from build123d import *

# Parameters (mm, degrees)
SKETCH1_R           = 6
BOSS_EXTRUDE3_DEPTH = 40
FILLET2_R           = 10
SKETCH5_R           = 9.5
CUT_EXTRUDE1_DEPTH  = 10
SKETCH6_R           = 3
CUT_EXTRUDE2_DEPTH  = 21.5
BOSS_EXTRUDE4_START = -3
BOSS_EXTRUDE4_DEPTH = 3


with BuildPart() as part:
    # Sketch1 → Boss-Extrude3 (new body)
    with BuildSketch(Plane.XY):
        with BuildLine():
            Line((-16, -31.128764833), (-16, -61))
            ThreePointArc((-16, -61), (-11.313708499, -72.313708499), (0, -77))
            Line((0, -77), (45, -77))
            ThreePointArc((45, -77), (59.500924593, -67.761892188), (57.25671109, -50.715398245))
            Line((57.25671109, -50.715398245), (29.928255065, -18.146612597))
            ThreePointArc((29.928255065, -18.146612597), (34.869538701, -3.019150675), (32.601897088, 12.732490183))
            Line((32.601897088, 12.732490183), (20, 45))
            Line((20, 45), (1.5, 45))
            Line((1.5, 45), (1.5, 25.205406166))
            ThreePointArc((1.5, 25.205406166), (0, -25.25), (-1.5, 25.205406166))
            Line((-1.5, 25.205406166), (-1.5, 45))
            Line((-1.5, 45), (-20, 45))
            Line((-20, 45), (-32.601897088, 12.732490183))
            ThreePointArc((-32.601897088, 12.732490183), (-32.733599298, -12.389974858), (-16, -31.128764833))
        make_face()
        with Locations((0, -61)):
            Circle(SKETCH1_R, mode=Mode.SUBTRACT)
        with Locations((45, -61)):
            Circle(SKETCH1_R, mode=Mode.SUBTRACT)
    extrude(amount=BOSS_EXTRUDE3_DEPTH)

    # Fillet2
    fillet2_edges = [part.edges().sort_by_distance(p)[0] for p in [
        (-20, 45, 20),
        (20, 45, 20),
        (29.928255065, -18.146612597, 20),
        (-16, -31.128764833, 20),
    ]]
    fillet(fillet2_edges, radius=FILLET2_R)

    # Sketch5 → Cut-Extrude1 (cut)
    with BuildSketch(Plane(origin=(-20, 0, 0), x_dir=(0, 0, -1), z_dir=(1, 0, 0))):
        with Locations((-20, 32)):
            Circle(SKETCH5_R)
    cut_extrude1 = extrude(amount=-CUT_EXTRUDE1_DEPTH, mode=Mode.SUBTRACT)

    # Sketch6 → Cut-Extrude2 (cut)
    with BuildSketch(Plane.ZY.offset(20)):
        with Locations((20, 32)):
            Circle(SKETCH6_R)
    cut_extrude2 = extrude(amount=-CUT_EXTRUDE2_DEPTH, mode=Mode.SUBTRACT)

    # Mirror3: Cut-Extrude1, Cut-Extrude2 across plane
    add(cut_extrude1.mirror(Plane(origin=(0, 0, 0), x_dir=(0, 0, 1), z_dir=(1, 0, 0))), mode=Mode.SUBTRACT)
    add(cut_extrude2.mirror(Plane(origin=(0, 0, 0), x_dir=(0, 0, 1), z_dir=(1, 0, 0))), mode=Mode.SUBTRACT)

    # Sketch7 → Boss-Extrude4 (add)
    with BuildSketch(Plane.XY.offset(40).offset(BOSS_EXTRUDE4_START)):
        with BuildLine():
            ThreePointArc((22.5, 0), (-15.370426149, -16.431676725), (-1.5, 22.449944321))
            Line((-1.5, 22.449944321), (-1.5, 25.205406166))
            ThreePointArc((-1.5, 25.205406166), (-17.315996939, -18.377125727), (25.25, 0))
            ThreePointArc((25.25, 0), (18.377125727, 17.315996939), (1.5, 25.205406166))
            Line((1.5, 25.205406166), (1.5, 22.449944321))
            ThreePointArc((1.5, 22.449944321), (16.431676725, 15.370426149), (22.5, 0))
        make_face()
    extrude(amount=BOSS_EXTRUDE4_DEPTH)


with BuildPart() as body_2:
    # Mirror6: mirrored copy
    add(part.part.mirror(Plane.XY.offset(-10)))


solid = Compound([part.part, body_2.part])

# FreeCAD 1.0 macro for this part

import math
import FreeCAD as App
import Part
import Sketcher
Q = App.Units.Quantity


def edges_at(feature, points):
    """Names of the edges that pass closest to the given points."""
    edges = feature.Shape.Edges
    near = lambda p: min(range(len(edges)), key=lambda i: edges[i].distToShape(Part.Vertex(*p))[0])
    return sorted({f"Edge{near(p) + 1}" for p in points})

doc = App.newDocument("Part")
params = doc.addObject("Spreadsheet::Sheet", "Params")
for row, (alias, value) in enumerate([
    ("sketch1_diameter", "12 mm"),
    ("sketch1_radius", "16 mm"),
    ("sketch1_radius2", "35 mm"),
    ("sketch1_width", "45 mm"),
    ("sketch1_radius3", "25.25 mm"),
    ("pad1_length", "40 mm"),
    ("fillet_radius", "10 mm"),
    ("sketch2_diameter", "19 mm"),
    ("pocket1_length", "10 mm"),
    ("sketch3_diameter", "6 mm"),
    ("pocket2_length", "21.5 mm"),
    ("sketch4_radius", "22.5 mm"),
    ("sketch4_radius2", "25.25 mm"),
    ("pad2_length", "3 mm"),
], start=1):
    params.set(f"A{row}", alias)
    params.set(f"B{row}", "=" + value)
    params.setAlias(f"B{row}", alias)

body = doc.addObject("PartDesign::Body", "Body")

sketch1 = doc.addObject("Sketcher::SketchObject", "Sketch")
body.addObject(sketch1)
sketch1.AttachmentSupport = (doc.XY_Plane, [""])
sketch1.MapMode = "FlatFace"
sketch1.addGeometry(Part.LineSegment(App.Vector(-16, -31.1, 0), App.Vector(-16, -61, 0)), False)
sketch1.addGeometry(Part.ArcOfCircle(Part.Circle(App.Vector(0, -61, 0), App.Vector(0, 0, 1), 16), math.radians(180), math.radians(270)), False)
sketch1.addGeometry(Part.LineSegment(App.Vector(0, -77, 0), App.Vector(45, -77, 0)), False)
sketch1.addGeometry(Part.ArcOfCircle(Part.Circle(App.Vector(45, -61, 0), App.Vector(0, 0, 1), 16), math.radians(-90), math.radians(40)), False)
sketch1.addGeometry(Part.LineSegment(App.Vector(57.3, -50.7, 0), App.Vector(29.9, -18.1, 0)), False)
sketch1.addGeometry(Part.ArcOfCircle(Part.Circle(App.Vector(0, 0, 0), App.Vector(0, 0, 1), 35), math.radians(-31), math.radians(21)), False)
sketch1.addGeometry(Part.LineSegment(App.Vector(32.6, 12.7, 0), App.Vector(20, 45, 0)), False)
sketch1.addGeometry(Part.LineSegment(App.Vector(20, 45, 0), App.Vector(1.5, 45, 0)), False)
sketch1.addGeometry(Part.LineSegment(App.Vector(1.5, 45, 0), App.Vector(1.5, 25.2, 0)), False)
sketch1.addGeometry(Part.ArcOfCircle(Part.Circle(App.Vector(0, 0, 0), App.Vector(0, 0, 1), 25.2), math.radians(93), math.radians(447)), False)
sketch1.addGeometry(Part.LineSegment(App.Vector(-1.5, 25.2, 0), App.Vector(-1.5, 45, 0)), False)
sketch1.addGeometry(Part.LineSegment(App.Vector(-1.5, 45, 0), App.Vector(-20, 45, 0)), False)
sketch1.addGeometry(Part.LineSegment(App.Vector(-20, 45, 0), App.Vector(-32.6, 12.7, 0)), False)
sketch1.addGeometry(Part.ArcOfCircle(Part.Circle(App.Vector(0, 0, 0), App.Vector(0, 0, 1), 35), math.radians(159), math.radians(243)), False)
sketch1.addGeometry(Part.Circle(App.Vector(0, -61, 0), App.Vector(0, 0, 1), 6), False)
sketch1.addGeometry(Part.Circle(App.Vector(45, -61, 0), App.Vector(0, 0, 1), 6), False)
sketch1.addConstraint(Sketcher.Constraint("Tangent", 0, 2, 1, 1))
sketch1.addConstraint(Sketcher.Constraint("Tangent", 1, 2, 2, 1))
sketch1.addConstraint(Sketcher.Constraint("Tangent", 2, 2, 3, 1))
sketch1.addConstraint(Sketcher.Constraint("Tangent", 3, 2, 4, 1))
sketch1.addConstraint(Sketcher.Constraint("Coincident", 4, 2, 5, 1))
sketch1.addConstraint(Sketcher.Constraint("Tangent", 5, 2, 6, 1))
sketch1.addConstraint(Sketcher.Constraint("Coincident", 6, 2, 7, 1))
sketch1.addConstraint(Sketcher.Constraint("Coincident", 7, 2, 8, 1))
sketch1.addConstraint(Sketcher.Constraint("Coincident", 8, 2, 9, 2))
sketch1.addConstraint(Sketcher.Constraint("Coincident", 9, 1, 10, 1))
sketch1.addConstraint(Sketcher.Constraint("Coincident", 10, 2, 11, 1))
sketch1.addConstraint(Sketcher.Constraint("Coincident", 11, 2, 12, 1))
sketch1.addConstraint(Sketcher.Constraint("Tangent", 12, 2, 13, 1))
sketch1.addConstraint(Sketcher.Constraint("Coincident", 13, 2, 0, 1))
sketch1.addConstraint(Sketcher.Constraint("Vertical", 0))
sketch1.addConstraint(Sketcher.Constraint("Horizontal", 2))
sketch1.addConstraint(Sketcher.Constraint("Horizontal", 7))
sketch1.addConstraint(Sketcher.Constraint("Vertical", 8))
sketch1.addConstraint(Sketcher.Constraint("Vertical", 10))
sketch1.addConstraint(Sketcher.Constraint("Horizontal", 11))
sketch1.addConstraint(Sketcher.Constraint("Coincident", 5, 3, -1, 1))
sketch1.addConstraint(Sketcher.Constraint("Coincident", 9, 3, -1, 1))
sketch1.addConstraint(Sketcher.Constraint("Coincident", 13, 3, -1, 1))
sketch1.addConstraint(Sketcher.Constraint("Coincident", 14, 3, 1, 3))
sketch1.addConstraint(Sketcher.Constraint("Coincident", 15, 3, 3, 3))
sketch1.addConstraint(Sketcher.Constraint("Equal", 1, 3))
sketch1.addConstraint(Sketcher.Constraint("Equal", 5, 13))
sketch1.addConstraint(Sketcher.Constraint("Equal", 14, 15))
sketch1.addConstraint(Sketcher.Constraint("Symmetric", 7, 2, 10, 2, -2))
sketch1.addConstraint(Sketcher.Constraint("PointOnObject", 1, 3, -2))
sketch1.addConstraint(Sketcher.Constraint("Horizontal", 5, 2, 12, 2))
sketch1.addConstraint(Sketcher.Constraint("Diameter", 14, Q("12 mm")))
sketch1.addConstraint(Sketcher.Constraint("Radius", 1, Q("16 mm")))
sketch1.addConstraint(Sketcher.Constraint("Radius", 5, Q("35 mm")))
sketch1.addConstraint(Sketcher.Constraint("DistanceX", 2, 1, 2, 2, Q("45 mm")))
sketch1.addConstraint(Sketcher.Constraint("Angle", 4, Q("130 deg")))
sketch1.addConstraint(Sketcher.Constraint("Radius", 9, Q("25.25 mm")))
sketch1.addConstraint(Sketcher.Constraint("DistanceX", 7, 2, 7, 1, Q("18.5 mm")))
sketch1.addConstraint(Sketcher.Constraint("DistanceY", 1, 3, -1, 1, Q("61 mm")))
sketch1.addConstraint(Sketcher.Constraint("DistanceX", -1, 1, 6, 2, Q("20 mm")))
sketch1.addConstraint(Sketcher.Constraint("DistanceY", -1, 1, 6, 2, Q("45 mm")))
sketch1.setExpression("Constraints[31]", "Params.sketch1_diameter")
sketch1.setExpression("Constraints[32]", "Params.sketch1_radius")
sketch1.setExpression("Constraints[33]", "Params.sketch1_radius2")
sketch1.setExpression("Constraints[34]", "Params.sketch1_width")
sketch1.setExpression("Constraints[36]", "Params.sketch1_radius3")
pad1 = doc.addObject("PartDesign::Pad", "Pad")
body.addObject(pad1)
pad1.Profile = sketch1
pad1.setExpression("Length", "Params.pad1_length")
doc.recompute()

fillet = doc.addObject("PartDesign::Fillet", "Fillet")
body.addObject(fillet)
fillet.Base = (pad1, edges_at(pad1, [
    (-20, 45, 20),
    (20, 45, 20),
    (29.928, -18.147, 20),
    (-16, -31.129, 20),
]))
fillet.setExpression("Radius", "Params.fillet_radius")

sketch2 = doc.addObject("Sketcher::SketchObject", "Sketch001")
body.addObject(sketch2)
sketch2.AttachmentSupport = (doc.YZ_Plane, [""])
sketch2.MapMode = "FlatFace"
sketch2.AttachmentOffset = App.Placement(App.Vector(0, 0, -20), App.Rotation())
sketch2.addGeometry(Part.Circle(App.Vector(32, 20, 0), App.Vector(0, 0, 1), 10), False)
sketch2.addConstraint(Sketcher.Constraint("Diameter", 0, Q("19 mm")))
sketch2.addConstraint(Sketcher.Constraint("DistanceX", -1, 1, 0, 3, Q("32 mm")))
sketch2.addConstraint(Sketcher.Constraint("DistanceY", -1, 1, 0, 3, Q("20 mm")))
sketch2.setExpression("Constraints[0]", "Params.sketch2_diameter")
pocket1 = doc.addObject("PartDesign::Pocket", "Pocket")
body.addObject(pocket1)
pocket1.Profile = sketch2
pocket1.setExpression("Length", "Params.pocket1_length")

sketch3 = doc.addObject("Sketcher::SketchObject", "Sketch002")
body.addObject(sketch3)
sketch3.AttachmentSupport = (doc.YZ_Plane, [""])
sketch3.MapMode = "FlatFace"
sketch3.AttachmentOffset = App.Placement(App.Vector(0, 0, -20), App.Rotation())
sketch3.addGeometry(Part.Circle(App.Vector(32, 20, 0), App.Vector(0, 0, 1), 3), False)
sketch3.addConstraint(Sketcher.Constraint("Diameter", 0, Q("6 mm")))
sketch3.addConstraint(Sketcher.Constraint("DistanceX", -1, 1, 0, 3, Q("32 mm")))
sketch3.addConstraint(Sketcher.Constraint("DistanceY", -1, 1, 0, 3, Q("20 mm")))
sketch3.setExpression("Constraints[0]", "Params.sketch3_diameter")
pocket2 = doc.addObject("PartDesign::Pocket", "Pocket001")
body.addObject(pocket2)
pocket2.Profile = sketch3
pocket2.setExpression("Length", "Params.pocket2_length")
pocket2.Reversed = True
doc.recompute()

mirrored = doc.addObject("PartDesign::Mirrored", "Mirrored")
body.addObject(mirrored)
mirrored.Originals = [pocket1, pocket2]
mirrored.MirrorPlane = (doc.YZ_Plane, [""])
body.Tip = mirrored

sketch4 = doc.addObject("Sketcher::SketchObject", "Sketch003")
body.addObject(sketch4)
sketch4.AttachmentSupport = (doc.XY_Plane, [""])
sketch4.MapMode = "FlatFace"
sketch4.AttachmentOffset = App.Placement(App.Vector(0, 0, 37), App.Rotation())
sketch4.addGeometry(Part.ArcOfCircle(Part.Circle(App.Vector(0, 0, 0), App.Vector(0, 0, 1), 22.5), math.radians(94), math.radians(360)), False)
sketch4.addGeometry(Part.LineSegment(App.Vector(-1.5, 22.4, 0), App.Vector(-1.5, 25.2, 0)), False)
sketch4.addGeometry(Part.ArcOfCircle(Part.Circle(App.Vector(0, 0, 0), App.Vector(0, 0, 1), 25.2), math.radians(93), math.radians(360)), False)
sketch4.addGeometry(Part.ArcOfCircle(Part.Circle(App.Vector(0, 0, 0), App.Vector(0, 0, 1), 25.3), math.radians(0), math.radians(87)), False)
sketch4.addGeometry(Part.LineSegment(App.Vector(1.5, 25.2, 0), App.Vector(1.5, 22.4, 0)), False)
sketch4.addGeometry(Part.ArcOfCircle(Part.Circle(App.Vector(0, 0, 0), App.Vector(0, 0, 1), 22.5), math.radians(0), math.radians(86)), False)
sketch4.addConstraint(Sketcher.Constraint("Coincident", 0, 1, 1, 1))
sketch4.addConstraint(Sketcher.Constraint("Coincident", 1, 2, 2, 1))
sketch4.addConstraint(Sketcher.Constraint("Tangent", 2, 2, 3, 1))
sketch4.addConstraint(Sketcher.Constraint("Coincident", 3, 2, 4, 1))
sketch4.addConstraint(Sketcher.Constraint("Coincident", 4, 2, 5, 2))
sketch4.addConstraint(Sketcher.Constraint("Tangent", 5, 1, 0, 2))
sketch4.addConstraint(Sketcher.Constraint("Vertical", 1))
sketch4.addConstraint(Sketcher.Constraint("Vertical", 4))
sketch4.addConstraint(Sketcher.Constraint("Coincident", 0, 3, -1, 1))
sketch4.addConstraint(Sketcher.Constraint("Coincident", 2, 3, -1, 1))
sketch4.addConstraint(Sketcher.Constraint("Equal", 2, 3))
sketch4.addConstraint(Sketcher.Constraint("Equal", 0, 5))
sketch4.addConstraint(Sketcher.Constraint("PointOnObject", 2, 2, -1))
sketch4.addConstraint(Sketcher.Constraint("PointOnObject", 5, 1, -1))
sketch4.addConstraint(Sketcher.Constraint("Horizontal", 1, 2, 3, 2))
sketch4.addConstraint(Sketcher.Constraint("Radius", 0, Q("22.5 mm")))
sketch4.addConstraint(Sketcher.Constraint("Radius", 2, Q("25.25 mm")))
sketch4.addConstraint(Sketcher.Constraint("DistanceX", 1, 2, 3, 2, Q("3 mm")))
sketch4.setExpression("Constraints[15]", "Params.sketch4_radius")
sketch4.setExpression("Constraints[16]", "Params.sketch4_radius2")
pad2 = doc.addObject("PartDesign::Pad", "Pad001")
body.addObject(pad2)
pad2.Profile = sketch4
pad2.setExpression("Length", "Params.pad2_length")
body2 = doc.addObject("PartDesign::Body", "Body001")
doc.recompute()

mirroring = doc.addObject("Part::Mirroring", "Mirroring")
mirroring.Source = body
mirroring.Base = App.Vector(0, 0, -10)
mirroring.Normal = App.Vector(0, 0, 1)
body2.BaseFeature = mirroring
doc.recompute()
mirroring.Visibility = False

doc.recompute()
